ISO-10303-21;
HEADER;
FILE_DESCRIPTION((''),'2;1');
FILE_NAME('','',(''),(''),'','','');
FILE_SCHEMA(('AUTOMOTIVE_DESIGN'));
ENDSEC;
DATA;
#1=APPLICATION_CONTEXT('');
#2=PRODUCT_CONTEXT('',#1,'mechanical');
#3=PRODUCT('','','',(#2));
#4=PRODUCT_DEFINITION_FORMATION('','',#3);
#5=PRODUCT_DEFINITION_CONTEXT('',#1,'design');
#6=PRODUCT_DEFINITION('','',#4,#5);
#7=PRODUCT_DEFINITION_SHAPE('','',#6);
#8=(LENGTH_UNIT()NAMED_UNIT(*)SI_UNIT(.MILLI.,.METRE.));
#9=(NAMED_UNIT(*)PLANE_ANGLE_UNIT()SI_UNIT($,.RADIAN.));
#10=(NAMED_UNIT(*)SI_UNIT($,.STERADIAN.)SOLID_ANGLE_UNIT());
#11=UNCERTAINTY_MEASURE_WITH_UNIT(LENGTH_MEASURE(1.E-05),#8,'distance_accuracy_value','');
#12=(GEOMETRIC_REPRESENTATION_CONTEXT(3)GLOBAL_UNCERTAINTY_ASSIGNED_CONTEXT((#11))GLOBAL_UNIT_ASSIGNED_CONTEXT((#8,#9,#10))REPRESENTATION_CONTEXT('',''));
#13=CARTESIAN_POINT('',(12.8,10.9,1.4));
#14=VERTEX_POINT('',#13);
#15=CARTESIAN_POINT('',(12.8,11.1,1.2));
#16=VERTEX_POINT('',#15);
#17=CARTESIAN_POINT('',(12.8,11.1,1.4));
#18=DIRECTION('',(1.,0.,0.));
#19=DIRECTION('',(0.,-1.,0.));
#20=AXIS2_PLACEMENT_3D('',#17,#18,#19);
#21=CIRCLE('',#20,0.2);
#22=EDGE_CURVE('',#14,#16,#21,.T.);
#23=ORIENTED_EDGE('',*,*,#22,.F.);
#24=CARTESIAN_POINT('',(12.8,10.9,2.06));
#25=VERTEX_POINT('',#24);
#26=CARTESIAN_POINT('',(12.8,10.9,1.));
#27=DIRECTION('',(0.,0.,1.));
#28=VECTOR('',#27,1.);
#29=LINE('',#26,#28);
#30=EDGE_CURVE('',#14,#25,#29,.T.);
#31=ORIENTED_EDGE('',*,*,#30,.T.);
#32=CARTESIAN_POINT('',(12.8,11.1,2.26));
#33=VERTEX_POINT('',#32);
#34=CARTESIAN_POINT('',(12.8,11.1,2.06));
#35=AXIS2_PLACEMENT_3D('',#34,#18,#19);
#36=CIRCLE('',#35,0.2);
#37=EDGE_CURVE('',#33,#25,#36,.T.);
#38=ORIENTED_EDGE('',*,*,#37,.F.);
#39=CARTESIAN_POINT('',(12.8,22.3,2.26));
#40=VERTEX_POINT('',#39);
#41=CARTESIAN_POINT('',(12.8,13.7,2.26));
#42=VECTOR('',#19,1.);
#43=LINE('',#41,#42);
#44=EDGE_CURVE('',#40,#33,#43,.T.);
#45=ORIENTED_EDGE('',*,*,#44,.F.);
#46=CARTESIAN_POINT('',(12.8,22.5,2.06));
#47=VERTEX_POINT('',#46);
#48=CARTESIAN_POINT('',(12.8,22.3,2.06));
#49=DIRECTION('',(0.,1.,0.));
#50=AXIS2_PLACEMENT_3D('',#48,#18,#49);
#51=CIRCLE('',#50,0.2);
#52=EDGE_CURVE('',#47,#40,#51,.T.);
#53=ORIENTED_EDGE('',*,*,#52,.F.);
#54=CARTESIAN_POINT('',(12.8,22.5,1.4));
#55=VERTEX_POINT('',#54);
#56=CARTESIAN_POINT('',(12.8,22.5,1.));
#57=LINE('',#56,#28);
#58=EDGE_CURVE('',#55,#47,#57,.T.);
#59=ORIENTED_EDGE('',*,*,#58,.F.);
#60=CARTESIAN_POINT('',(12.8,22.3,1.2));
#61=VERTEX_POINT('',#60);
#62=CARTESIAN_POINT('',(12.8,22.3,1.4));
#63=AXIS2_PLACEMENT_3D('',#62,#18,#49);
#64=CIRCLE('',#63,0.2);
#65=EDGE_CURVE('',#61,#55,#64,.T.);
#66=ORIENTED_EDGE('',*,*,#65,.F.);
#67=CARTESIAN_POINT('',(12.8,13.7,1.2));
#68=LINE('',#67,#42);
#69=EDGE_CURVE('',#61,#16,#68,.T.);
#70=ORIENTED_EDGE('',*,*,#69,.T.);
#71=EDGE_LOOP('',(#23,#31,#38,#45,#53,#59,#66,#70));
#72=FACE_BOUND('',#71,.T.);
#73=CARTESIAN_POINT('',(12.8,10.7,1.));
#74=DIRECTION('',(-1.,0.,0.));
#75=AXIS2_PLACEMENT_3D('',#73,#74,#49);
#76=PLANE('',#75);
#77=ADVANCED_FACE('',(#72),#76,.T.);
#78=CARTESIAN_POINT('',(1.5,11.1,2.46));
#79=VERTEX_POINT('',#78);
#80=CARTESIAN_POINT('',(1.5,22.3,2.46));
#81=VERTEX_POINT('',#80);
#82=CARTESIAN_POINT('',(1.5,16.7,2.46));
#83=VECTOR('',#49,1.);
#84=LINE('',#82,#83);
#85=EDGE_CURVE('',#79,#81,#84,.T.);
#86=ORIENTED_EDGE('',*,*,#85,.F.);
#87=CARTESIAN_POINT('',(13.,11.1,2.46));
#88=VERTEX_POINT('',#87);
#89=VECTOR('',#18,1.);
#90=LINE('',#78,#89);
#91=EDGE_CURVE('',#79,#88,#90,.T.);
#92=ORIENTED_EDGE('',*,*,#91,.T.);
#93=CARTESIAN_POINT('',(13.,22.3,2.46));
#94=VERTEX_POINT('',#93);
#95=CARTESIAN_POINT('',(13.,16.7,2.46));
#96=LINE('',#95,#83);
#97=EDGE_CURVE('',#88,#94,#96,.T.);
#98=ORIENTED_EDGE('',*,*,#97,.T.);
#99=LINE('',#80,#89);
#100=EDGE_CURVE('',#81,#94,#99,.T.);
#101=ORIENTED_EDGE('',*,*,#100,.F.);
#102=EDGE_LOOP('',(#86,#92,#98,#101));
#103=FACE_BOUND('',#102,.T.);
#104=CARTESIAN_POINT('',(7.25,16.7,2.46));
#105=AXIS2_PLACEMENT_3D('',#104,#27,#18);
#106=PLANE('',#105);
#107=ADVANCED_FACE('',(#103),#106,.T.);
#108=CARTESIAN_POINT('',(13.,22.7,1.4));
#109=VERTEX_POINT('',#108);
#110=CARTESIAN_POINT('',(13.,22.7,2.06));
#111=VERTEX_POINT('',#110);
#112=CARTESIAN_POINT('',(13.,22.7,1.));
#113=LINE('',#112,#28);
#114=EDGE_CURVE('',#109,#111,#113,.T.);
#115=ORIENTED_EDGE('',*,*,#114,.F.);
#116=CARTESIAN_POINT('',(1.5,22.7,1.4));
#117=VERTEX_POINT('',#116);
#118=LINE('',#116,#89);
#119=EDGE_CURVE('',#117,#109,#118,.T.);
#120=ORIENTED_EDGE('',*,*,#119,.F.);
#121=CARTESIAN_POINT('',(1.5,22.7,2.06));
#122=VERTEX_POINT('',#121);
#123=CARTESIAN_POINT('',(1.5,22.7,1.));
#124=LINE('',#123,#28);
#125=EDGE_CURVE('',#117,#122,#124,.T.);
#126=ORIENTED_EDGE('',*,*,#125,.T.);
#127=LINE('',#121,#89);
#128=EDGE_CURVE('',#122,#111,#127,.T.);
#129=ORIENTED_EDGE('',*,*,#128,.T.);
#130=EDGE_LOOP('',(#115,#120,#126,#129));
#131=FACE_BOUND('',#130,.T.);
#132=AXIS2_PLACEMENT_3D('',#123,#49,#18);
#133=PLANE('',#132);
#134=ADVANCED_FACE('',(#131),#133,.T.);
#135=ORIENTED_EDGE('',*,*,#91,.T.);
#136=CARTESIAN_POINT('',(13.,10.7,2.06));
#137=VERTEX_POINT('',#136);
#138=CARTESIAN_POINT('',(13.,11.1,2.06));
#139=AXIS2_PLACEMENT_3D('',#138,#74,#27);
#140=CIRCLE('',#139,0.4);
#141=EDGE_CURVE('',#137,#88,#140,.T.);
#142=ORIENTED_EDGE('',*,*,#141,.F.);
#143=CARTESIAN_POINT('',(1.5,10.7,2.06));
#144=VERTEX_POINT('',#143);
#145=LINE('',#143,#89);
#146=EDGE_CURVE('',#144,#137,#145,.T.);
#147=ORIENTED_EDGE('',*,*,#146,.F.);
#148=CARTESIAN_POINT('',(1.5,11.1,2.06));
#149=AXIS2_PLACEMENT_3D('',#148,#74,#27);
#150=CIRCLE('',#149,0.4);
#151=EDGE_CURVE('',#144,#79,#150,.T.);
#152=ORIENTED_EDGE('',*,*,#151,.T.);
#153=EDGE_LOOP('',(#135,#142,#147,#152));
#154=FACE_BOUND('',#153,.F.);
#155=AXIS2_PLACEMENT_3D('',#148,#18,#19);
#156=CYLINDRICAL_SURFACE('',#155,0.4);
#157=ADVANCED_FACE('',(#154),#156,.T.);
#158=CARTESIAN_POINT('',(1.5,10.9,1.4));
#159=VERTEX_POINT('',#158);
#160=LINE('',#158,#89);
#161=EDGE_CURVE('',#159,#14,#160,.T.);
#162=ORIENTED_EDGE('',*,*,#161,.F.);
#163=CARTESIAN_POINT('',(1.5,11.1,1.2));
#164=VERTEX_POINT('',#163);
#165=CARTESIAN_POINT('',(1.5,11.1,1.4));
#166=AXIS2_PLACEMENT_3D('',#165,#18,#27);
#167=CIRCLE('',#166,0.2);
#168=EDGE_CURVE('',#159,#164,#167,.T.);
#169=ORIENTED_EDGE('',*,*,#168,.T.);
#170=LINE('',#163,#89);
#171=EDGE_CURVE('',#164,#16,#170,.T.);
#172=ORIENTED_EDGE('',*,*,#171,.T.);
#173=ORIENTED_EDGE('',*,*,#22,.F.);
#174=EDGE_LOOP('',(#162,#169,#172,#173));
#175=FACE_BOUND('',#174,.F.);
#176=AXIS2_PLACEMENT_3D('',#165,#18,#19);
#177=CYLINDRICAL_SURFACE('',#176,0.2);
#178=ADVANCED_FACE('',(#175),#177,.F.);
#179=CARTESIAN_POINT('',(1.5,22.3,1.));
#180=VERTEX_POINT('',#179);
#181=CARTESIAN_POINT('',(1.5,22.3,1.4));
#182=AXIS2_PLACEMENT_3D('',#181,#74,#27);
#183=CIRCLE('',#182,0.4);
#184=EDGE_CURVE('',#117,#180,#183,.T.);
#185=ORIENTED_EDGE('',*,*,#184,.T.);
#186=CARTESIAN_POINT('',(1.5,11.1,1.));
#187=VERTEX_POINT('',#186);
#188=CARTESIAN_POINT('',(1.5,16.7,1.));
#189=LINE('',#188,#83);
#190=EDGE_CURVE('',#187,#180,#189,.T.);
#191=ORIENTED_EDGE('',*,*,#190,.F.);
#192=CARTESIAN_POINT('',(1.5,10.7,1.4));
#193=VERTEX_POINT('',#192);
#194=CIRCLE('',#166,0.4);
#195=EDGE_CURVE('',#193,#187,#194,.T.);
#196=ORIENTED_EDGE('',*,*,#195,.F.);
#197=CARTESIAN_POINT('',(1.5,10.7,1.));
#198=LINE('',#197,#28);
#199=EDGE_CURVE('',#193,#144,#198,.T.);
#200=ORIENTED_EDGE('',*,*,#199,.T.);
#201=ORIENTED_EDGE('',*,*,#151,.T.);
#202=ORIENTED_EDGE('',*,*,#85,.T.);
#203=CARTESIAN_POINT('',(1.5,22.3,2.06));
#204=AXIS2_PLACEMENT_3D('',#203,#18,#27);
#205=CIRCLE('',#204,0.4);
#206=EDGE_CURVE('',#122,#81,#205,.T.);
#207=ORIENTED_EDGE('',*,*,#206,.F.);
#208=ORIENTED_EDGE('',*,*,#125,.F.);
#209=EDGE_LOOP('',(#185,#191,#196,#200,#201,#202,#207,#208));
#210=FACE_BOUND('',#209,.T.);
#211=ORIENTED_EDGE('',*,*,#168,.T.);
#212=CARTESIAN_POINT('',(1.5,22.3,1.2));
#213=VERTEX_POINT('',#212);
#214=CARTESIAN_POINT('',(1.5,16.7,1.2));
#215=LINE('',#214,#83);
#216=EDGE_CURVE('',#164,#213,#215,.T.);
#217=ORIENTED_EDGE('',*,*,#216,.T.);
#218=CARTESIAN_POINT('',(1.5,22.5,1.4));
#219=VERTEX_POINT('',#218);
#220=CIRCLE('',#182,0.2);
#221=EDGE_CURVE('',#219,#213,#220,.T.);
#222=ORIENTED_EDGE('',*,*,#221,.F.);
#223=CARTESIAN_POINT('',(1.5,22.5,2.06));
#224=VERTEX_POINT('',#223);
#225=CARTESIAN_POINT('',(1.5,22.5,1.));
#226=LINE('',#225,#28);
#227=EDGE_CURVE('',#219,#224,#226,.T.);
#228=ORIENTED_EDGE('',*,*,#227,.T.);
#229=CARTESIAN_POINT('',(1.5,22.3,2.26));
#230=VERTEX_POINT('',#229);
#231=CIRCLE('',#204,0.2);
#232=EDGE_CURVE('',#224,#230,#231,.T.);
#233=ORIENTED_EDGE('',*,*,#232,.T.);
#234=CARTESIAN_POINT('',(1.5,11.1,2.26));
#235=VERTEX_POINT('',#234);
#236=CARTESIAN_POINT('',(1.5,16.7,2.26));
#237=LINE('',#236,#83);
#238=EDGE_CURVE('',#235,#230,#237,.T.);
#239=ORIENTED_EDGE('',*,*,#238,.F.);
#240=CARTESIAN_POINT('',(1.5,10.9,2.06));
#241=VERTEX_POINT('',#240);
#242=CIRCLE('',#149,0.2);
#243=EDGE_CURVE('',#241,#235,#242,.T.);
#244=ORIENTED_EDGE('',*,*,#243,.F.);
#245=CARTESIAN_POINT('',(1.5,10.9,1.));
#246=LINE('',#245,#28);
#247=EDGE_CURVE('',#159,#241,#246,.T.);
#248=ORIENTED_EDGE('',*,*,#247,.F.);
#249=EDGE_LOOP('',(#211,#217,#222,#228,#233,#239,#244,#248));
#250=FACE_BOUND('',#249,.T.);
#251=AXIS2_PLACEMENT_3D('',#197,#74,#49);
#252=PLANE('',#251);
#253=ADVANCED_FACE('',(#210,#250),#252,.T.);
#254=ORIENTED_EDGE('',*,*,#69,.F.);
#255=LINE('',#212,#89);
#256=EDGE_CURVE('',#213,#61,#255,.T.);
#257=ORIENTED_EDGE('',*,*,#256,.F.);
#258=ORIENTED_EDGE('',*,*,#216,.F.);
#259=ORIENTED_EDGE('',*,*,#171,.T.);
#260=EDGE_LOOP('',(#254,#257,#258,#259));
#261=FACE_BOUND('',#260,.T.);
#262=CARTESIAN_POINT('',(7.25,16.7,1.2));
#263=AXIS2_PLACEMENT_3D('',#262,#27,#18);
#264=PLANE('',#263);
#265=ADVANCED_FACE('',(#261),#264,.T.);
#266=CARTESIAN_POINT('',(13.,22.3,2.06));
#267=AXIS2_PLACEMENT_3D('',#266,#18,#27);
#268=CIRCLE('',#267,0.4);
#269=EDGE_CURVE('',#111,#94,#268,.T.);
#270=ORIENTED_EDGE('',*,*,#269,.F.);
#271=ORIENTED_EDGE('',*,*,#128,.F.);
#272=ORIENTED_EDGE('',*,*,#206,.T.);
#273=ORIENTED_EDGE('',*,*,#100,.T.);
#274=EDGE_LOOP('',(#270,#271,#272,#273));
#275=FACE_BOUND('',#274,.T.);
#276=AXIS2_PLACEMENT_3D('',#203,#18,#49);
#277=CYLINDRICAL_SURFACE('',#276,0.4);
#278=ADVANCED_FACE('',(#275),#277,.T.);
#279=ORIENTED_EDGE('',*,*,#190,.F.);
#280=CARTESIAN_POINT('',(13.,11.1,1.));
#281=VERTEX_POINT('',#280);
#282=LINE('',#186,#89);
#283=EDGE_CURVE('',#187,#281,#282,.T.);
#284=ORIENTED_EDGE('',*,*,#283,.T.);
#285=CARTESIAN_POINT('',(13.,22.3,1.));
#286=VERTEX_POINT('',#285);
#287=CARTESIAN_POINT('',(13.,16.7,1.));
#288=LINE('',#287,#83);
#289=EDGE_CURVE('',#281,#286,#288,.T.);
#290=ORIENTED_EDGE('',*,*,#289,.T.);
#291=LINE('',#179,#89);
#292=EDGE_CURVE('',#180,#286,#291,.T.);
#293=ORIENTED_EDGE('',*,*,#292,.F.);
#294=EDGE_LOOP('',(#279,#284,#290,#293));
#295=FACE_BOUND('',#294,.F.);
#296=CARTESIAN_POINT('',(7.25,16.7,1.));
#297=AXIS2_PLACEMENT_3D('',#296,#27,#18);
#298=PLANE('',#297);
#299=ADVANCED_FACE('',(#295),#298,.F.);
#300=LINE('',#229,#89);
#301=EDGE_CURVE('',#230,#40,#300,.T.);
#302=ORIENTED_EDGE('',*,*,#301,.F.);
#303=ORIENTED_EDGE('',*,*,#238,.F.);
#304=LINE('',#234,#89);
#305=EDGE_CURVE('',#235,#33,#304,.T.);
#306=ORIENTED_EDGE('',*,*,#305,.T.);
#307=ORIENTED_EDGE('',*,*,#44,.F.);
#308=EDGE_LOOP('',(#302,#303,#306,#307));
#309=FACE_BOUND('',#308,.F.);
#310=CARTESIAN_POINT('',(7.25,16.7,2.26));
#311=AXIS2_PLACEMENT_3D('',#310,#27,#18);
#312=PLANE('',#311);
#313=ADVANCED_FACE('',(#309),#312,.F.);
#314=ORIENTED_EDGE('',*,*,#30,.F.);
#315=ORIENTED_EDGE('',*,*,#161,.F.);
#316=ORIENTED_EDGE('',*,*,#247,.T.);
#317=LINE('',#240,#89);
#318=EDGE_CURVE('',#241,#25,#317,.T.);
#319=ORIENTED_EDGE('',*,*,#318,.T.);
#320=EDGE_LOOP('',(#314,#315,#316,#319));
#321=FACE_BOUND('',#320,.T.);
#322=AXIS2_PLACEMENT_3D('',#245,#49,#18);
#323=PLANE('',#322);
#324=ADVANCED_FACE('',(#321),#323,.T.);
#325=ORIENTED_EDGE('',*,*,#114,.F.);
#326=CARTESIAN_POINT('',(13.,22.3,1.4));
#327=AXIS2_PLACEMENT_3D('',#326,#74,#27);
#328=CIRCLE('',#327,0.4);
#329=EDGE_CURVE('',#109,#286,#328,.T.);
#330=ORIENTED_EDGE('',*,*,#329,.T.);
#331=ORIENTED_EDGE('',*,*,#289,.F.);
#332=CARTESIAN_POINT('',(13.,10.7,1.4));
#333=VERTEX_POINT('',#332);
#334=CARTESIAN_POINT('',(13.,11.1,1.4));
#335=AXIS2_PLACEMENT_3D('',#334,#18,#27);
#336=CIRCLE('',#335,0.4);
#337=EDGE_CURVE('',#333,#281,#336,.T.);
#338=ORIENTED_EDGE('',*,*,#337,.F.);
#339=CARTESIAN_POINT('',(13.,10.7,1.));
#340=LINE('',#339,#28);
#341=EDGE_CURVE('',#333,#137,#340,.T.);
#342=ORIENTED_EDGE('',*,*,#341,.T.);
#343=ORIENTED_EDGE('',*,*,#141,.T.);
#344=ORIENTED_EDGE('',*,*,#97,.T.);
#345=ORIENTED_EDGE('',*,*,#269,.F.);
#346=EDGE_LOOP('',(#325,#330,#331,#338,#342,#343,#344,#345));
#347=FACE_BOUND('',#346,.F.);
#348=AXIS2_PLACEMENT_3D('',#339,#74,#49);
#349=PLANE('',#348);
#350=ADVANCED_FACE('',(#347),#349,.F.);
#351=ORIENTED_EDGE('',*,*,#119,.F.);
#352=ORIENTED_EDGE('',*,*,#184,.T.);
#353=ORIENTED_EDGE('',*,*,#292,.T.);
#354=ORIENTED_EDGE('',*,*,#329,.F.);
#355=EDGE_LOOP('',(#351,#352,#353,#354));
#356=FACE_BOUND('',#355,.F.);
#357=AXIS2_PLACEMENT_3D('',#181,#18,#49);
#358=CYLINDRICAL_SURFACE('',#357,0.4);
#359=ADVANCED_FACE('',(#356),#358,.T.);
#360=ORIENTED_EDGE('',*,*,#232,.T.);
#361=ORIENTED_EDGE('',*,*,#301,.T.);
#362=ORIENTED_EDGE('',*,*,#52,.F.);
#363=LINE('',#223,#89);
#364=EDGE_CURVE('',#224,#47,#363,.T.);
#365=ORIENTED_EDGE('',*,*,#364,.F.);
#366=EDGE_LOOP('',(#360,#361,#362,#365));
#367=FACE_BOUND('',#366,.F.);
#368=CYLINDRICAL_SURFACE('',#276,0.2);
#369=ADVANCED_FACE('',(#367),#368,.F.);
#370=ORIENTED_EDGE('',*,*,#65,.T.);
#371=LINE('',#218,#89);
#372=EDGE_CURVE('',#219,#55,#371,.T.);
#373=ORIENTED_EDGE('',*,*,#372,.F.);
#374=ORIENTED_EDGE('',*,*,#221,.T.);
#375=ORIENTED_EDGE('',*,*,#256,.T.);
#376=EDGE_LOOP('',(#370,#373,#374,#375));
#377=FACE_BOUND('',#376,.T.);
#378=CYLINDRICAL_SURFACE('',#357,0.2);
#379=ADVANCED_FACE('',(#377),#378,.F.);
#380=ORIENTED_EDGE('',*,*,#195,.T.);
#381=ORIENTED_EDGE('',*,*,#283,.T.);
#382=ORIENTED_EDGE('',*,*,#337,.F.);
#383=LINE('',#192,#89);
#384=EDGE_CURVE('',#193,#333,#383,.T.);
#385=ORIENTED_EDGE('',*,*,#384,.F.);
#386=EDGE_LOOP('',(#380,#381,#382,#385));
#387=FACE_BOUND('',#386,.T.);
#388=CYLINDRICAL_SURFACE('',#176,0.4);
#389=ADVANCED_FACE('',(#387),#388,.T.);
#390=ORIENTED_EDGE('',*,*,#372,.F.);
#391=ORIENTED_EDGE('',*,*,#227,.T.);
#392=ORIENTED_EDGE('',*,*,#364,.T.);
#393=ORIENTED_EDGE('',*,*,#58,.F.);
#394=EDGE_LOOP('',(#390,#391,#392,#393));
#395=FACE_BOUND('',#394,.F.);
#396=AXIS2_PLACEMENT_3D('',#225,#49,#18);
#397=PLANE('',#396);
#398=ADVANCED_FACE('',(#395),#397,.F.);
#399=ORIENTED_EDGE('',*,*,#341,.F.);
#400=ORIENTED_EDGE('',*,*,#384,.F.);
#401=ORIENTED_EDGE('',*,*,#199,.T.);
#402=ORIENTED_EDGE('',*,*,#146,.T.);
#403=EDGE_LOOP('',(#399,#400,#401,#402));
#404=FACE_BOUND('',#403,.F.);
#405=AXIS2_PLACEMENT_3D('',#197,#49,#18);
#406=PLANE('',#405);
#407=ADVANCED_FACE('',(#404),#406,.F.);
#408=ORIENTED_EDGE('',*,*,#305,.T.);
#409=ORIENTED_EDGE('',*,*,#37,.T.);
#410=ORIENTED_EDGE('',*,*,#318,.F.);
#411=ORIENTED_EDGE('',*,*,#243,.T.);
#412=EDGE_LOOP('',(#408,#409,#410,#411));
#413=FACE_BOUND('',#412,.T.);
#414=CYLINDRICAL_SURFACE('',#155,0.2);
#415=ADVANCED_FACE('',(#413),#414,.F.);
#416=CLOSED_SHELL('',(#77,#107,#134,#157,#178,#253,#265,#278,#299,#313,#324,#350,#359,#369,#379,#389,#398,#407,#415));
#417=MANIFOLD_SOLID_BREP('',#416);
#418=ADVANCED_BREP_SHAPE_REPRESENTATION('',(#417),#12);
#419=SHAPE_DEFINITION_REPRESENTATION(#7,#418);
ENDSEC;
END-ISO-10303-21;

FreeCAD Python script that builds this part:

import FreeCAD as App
import Part
import Sketcher
Q = App.Units.Quantity


def edges_at(feature, points):
    """Names of the edges that pass closest to the given points."""
    edges = feature.Shape.Edges
    near = lambda p: min(range(len(edges)), key=lambda i: edges[i].distToShape(Part.Vertex(*p))[0])
    return sorted({f"Edge{near(p) + 1}" for p in points})


def faces_at(feature, points):
    """Names of the faces that lie closest to the given points."""
    faces = feature.Shape.Faces
    near = lambda p: min(range(len(faces)), key=lambda i: faces[i].distToShape(Part.Vertex(*p))[0])
    return sorted({f"Face{near(p) + 1}" for p in points})


def add_polygon(sketch, points):
    """Adds a closed chain of lines whose ends are joined by coincident constraints."""
    first, n = sketch.GeometryCount, len(points)
    for a, b in zip(points, points[1:] + points[:1]):
        sketch.addGeometry(Part.LineSegment(App.Vector(*a, 0), App.Vector(*b, 0)), False)
    for i in range(n):
        sketch.addConstraint(Sketcher.Constraint("Coincident", first + i, 2, first + (i + 1) % n, 1))

doc = App.newDocument("Part")
body = doc.addObject("PartDesign::Body", "Body")

sketch1 = doc.addObject("Sketcher::SketchObject", "Sketch")
body.addObject(sketch1)
sketch1.AttachmentSupport = (doc.XY_Plane, [""])
sketch1.MapMode = "FlatFace"
sketch1.AttachmentOffset = App.Placement(App.Vector(0, 0, 1), App.Rotation())
add_polygon(sketch1, [(2, 23), (2, 11), (13, 11), (13, 23)])
sketch1.addConstraint(Sketcher.Constraint("Vertical", 0))
sketch1.addConstraint(Sketcher.Constraint("Horizontal", 1))
sketch1.addConstraint(Sketcher.Constraint("Vertical", 2))
sketch1.addConstraint(Sketcher.Constraint("Horizontal", 3))
sketch1.addConstraint(Sketcher.Constraint("DistanceY", 0, 2, 0, 1, Q("12 mm")))
sketch1.addConstraint(Sketcher.Constraint("DistanceX", 1, 1, 1, 2, Q("11.5 mm")))
sketch1.addConstraint(Sketcher.Constraint("DistanceX", -1, 1, 1, 2, Q("13 mm")))
sketch1.addConstraint(Sketcher.Constraint("DistanceY", -1, 1, 0, 2, Q("10.7 mm")))
pad1 = doc.addObject("PartDesign::Pad", "Pad")
body.addObject(pad1)
pad1.Profile = sketch1
pad1.Length = 1.46
doc.recompute()

fillet = doc.addObject("PartDesign::Fillet", "Fillet")
body.addObject(fillet)
fillet.Base = (pad1, edges_at(pad1, [
    (7.25, 10.7, 2.46),
    (7.25, 10.7, 1),
    (7.25, 22.7, 2.46),
    (7.25, 22.7, 1),
]))
fillet.Radius = 0.4
doc.recompute()

thickness = doc.addObject("PartDesign::Thickness", "Thickness")
body.addObject(thickness)
thickness.Base = (fillet, faces_at(fillet, [(1.5, 16.7, 1.73)]))
thickness.Value = 0.2
thickness.Reversed = True
thickness.Join = "Arc"

doc.recompute()
